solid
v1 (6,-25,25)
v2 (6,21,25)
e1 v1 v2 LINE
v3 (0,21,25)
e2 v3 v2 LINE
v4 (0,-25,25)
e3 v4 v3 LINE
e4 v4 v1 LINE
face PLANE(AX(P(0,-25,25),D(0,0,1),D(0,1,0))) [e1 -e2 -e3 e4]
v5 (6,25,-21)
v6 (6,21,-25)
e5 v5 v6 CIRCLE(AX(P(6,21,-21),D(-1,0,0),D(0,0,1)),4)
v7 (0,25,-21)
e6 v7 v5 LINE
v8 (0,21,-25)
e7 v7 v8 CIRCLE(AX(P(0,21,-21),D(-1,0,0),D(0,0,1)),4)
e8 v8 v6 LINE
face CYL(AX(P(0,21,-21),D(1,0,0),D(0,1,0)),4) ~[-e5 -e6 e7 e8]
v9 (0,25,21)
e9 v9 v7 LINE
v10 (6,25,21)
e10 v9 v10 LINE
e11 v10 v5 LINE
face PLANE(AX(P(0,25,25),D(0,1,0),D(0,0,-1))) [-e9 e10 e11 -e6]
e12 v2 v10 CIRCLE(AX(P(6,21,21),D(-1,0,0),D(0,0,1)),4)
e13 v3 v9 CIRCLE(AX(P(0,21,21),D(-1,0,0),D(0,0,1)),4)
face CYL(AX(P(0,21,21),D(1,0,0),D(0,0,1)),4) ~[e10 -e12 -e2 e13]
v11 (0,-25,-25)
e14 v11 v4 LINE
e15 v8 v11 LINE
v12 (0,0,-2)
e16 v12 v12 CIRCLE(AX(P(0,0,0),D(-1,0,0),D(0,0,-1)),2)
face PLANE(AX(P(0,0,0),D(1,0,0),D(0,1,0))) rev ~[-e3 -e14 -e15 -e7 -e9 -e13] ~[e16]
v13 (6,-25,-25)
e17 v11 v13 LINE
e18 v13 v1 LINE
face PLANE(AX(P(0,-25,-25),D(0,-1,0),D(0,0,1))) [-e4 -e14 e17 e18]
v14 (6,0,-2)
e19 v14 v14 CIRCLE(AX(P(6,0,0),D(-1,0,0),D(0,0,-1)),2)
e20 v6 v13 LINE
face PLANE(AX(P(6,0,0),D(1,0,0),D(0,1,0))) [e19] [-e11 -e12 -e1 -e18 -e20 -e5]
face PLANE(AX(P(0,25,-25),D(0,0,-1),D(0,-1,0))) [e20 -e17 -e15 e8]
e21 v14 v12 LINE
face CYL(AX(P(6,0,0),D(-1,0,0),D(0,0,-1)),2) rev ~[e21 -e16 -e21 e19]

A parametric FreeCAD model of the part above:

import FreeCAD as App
import Part
import Sketcher


def edges_at(feature, points):
    """Names of the edges that pass closest to the given points."""
    edges = feature.Shape.Edges
    near = lambda p: min(range(len(edges)), key=lambda i: edges[i].distToShape(Part.Vertex(*p))[0])
    return sorted({f"Edge{near(p) + 1}" for p in points})

doc = App.newDocument("Part")
body = doc.addObject("PartDesign::Body", "Body")

sketch1 = body.newObject("Sketcher::SketchObject", "Sketch")
sketch1.AttachmentSupport = (doc.getObject("YZ_Plane"), [""])
sketch1.MapMode = "FlatFace"
sketch1.addGeometry([
    Part.LineSegment(App.Vector(25, 25, 0), App.Vector(-25, 25, 0)),
    Part.LineSegment(App.Vector(-25, 25, 0), App.Vector(-25, -25, 0)),
    Part.LineSegment(App.Vector(-25, -25, 0), App.Vector(25, -25, 0)),
    Part.LineSegment(App.Vector(25, -25, 0), App.Vector(25, 25, 0)),
], False)
sketch1.addConstraint([
    Sketcher.Constraint("Coincident", 0, 2, 1, 1),
    Sketcher.Constraint("Coincident", 1, 2, 2, 1),
    Sketcher.Constraint("Coincident", 2, 2, 3, 1),
    Sketcher.Constraint("Coincident", 3, 2, 0, 1),
    Sketcher.Constraint("Horizontal", 0),
    Sketcher.Constraint("Vertical", 1),
    Sketcher.Constraint("Horizontal", 2),
    Sketcher.Constraint("Vertical", 3),
    Sketcher.Constraint("Symmetric", 0, 2, 2, 2, -1, 1),
    Sketcher.Constraint("Equal", 2, 1),
    Sketcher.Constraint("DistanceX", 0, 2, 0, 1, 50.0),
])
pad1 = body.newObject("PartDesign::Pad", "Pad")
pad1.Profile = sketch1
pad1.Length = 6

sketch2 = body.newObject("Sketcher::SketchObject", "Sketch001")
sketch2.AttachmentSupport = (doc.getObject("YZ_Plane"), [""])
sketch2.MapMode = "FlatFace"
sketch2.AttachmentOffset = App.Placement(App.Vector(0, 0, 6), App.Rotation())
sketch2.addGeometry(Part.Circle(App.Vector(0, 0, 0), App.Vector(0, 0, 1), 2), False)
sketch2.addConstraint([
    Sketcher.Constraint("Coincident", 0, 3, -1, 1),
    Sketcher.Constraint("Diameter", 0, 4.0),
])
doc.recompute()
hole = body.newObject("PartDesign::Hole", "Hole")
hole.Profile = sketch2
hole.ThreadType = "None"
hole.Diameter = 4
hole.DepthType = "ThroughAll"
doc.recompute()

fillet = body.newObject("PartDesign::Fillet", "Fillet")
fillet.Base = (hole, edges_at(hole, [(3, 25, 25), (3, 25, -25)]))
fillet.Radius = 4

doc.recompute()
